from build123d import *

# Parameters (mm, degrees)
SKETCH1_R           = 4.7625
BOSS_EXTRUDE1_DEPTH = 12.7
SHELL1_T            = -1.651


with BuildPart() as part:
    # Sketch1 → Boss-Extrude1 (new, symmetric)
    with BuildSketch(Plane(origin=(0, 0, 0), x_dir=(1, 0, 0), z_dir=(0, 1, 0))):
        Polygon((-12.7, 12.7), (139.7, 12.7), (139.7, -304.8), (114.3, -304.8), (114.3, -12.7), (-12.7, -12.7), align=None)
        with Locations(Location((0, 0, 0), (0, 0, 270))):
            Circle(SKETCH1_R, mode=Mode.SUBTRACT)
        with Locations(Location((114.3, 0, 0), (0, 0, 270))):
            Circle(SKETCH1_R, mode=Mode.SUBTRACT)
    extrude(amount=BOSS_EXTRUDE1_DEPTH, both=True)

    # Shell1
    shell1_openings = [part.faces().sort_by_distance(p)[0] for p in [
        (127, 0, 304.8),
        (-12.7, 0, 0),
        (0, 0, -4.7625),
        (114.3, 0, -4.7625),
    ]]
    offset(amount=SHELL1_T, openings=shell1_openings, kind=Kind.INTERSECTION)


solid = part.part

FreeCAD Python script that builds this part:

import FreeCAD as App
import Part
import Sketcher
Q = App.Units.Quantity


def faces_at(feature, points):
    """Names of the faces that lie closest to the given points."""
    faces = feature.Shape.Faces
    near = lambda p: min(range(len(faces)), key=lambda i: faces[i].distToShape(Part.Vertex(*p))[0])
    return sorted({f"Face{near(p) + 1}" for p in points})


def add_polygon(sketch, points):
    """Adds a closed chain of lines whose ends are joined by coincident constraints."""
    first, n = sketch.GeometryCount, len(points)
    for a, b in zip(points, points[1:] + points[:1]):
        sketch.addGeometry(Part.LineSegment(App.Vector(*a, 0), App.Vector(*b, 0)), False)
    for i in range(n):
        sketch.addConstraint(Sketcher.Constraint("Coincident", first + i, 2, first + (i + 1) % n, 1))

doc = App.newDocument("Part")
body = doc.addObject("PartDesign::Body", "Body")

# Sketch on XZ plane
sketch1 = body.newObject("Sketcher::SketchObject", "Sketch")
sketch1.AttachmentSupport = (doc.getObject("XZ_Plane"), [""])
sketch1.MapMode = "FlatFace"
add_polygon(sketch1, [(139.7, -12.7), (-12.7, -12.7), (-12.7, 12.7), (114.3, 12.7), (114.3, 304.8), (139.7, 304.8)])  # lines 0-5
sketch1.addGeometry(Part.Circle(App.Vector(114.3, 0, 0), App.Vector(0, 0, 1), 4.8), False)  # 6
sketch1.addGeometry(Part.Circle(App.Vector(0, 0, 0), App.Vector(0, 0, 1), 4.8), False)  # 7
sketch1.addConstraint(Sketcher.Constraint("Horizontal", 0))
sketch1.addConstraint(Sketcher.Constraint("Vertical", 1))
sketch1.addConstraint(Sketcher.Constraint("Horizontal", 2))
sketch1.addConstraint(Sketcher.Constraint("Vertical", 3))
sketch1.addConstraint(Sketcher.Constraint("Horizontal", 4))
sketch1.addConstraint(Sketcher.Constraint("Vertical", 5))
sketch1.addConstraint(Sketcher.Constraint("Coincident", 7, 3, -1, 1))
sketch1.addConstraint(Sketcher.Constraint("Equal", 6, 7))
sketch1.addConstraint(Sketcher.Constraint("PointOnObject", 6, 3, -1))
sketch1.addConstraint(Sketcher.Constraint("Vertical", 6, 3, 2, 2))
sketch1.addConstraint(Sketcher.Constraint("Equal", 4, 1))
sketch1.addConstraint(Sketcher.Constraint("DistanceX", 0, 2, 0, 1, Q("6 in")))
sketch1.addConstraint(Sketcher.Constraint("DistanceX", 2, 1, 2, 2, Q("5 in")))
sketch1.addConstraint(Sketcher.Constraint("Diameter", 6, Q("0.375 in")))
sketch1.addConstraint(Sketcher.Constraint("DistanceY", 3, 1, 3, 2, Q("11.5 in")))
sketch1.addConstraint(Sketcher.Constraint("DistanceY", -1, 1, 3, 2, Q("12 in")))
sketch1.addConstraint(Sketcher.Constraint("DistanceX", -1, 1, 6, 3, Q("4.5 in")))
pad1 = body.newObject("PartDesign::Pad", "Pad")
pad1.Profile = sketch1
pad1.Length = Q("1 in")
pad1.Midplane = True
doc.recompute()

thickness = body.newObject("PartDesign::Thickness", "Thickness")
thickness.Base = (pad1, faces_at(pad1, [
    (127, 0, 304.8),
    (-12.7, 0, 0),
    (0, 0, -4.763),
    (114.3, 0, -4.763),
]))
thickness.Value = Q("0.065 in")
thickness.Reversed = True
thickness.Join = "Intersection"

doc.recompute()
